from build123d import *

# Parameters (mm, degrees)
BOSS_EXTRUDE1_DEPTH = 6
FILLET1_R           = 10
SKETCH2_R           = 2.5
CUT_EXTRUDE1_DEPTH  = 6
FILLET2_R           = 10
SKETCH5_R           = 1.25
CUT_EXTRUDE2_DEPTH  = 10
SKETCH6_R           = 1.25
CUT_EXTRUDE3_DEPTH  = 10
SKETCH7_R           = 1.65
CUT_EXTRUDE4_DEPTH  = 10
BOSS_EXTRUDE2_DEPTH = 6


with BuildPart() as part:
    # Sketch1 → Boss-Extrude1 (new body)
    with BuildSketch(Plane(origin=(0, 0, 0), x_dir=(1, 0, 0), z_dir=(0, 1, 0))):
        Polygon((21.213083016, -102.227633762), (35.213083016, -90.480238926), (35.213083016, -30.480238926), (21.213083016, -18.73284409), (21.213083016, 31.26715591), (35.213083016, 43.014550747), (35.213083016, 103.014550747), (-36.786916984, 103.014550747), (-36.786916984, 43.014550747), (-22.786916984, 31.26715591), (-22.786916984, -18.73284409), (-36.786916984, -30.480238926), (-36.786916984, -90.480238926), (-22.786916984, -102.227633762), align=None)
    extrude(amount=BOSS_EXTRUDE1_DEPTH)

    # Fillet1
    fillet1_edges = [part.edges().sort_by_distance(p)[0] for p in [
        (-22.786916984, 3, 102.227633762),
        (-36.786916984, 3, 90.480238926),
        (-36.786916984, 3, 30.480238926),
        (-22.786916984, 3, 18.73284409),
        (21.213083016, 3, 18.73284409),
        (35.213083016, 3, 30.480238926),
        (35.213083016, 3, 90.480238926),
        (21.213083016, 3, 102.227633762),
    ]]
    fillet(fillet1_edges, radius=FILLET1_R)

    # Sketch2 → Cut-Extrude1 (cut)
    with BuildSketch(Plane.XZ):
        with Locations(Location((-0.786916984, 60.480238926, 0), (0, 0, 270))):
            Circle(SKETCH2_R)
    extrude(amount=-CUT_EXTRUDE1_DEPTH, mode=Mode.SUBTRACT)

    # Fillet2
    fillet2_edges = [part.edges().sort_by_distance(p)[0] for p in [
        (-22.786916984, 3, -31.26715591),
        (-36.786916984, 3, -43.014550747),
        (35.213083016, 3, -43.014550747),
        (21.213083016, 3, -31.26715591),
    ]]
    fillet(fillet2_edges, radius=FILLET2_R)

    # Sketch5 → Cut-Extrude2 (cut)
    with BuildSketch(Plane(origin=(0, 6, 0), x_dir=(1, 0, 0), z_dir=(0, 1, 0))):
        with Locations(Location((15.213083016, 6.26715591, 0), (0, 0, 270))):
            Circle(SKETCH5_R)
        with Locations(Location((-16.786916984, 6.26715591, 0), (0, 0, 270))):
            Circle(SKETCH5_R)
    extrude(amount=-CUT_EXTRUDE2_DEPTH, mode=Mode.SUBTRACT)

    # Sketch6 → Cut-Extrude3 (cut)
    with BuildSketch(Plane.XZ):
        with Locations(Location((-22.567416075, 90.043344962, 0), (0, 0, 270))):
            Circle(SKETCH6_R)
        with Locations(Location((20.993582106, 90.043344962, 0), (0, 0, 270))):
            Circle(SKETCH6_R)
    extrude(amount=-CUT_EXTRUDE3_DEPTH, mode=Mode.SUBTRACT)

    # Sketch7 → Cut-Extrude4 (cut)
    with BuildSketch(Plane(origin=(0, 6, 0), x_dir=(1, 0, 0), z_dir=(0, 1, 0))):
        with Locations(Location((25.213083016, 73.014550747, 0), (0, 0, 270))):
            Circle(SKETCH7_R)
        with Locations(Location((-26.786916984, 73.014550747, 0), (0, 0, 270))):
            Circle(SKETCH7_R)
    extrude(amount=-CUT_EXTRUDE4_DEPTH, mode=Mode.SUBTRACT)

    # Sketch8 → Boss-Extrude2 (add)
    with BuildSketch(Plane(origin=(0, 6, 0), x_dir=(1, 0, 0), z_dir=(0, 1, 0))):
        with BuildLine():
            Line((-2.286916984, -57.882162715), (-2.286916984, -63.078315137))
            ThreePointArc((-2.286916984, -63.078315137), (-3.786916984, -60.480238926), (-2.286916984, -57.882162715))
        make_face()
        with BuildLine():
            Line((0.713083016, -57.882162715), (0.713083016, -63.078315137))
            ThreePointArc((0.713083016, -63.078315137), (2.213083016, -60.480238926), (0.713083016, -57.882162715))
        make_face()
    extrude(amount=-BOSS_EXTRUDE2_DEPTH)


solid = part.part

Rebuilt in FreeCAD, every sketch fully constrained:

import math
import FreeCAD as App
import Part
import Sketcher
from FreeCAD import Vector
Q = App.Units.Quantity


def edges_at(feature, points):
    """Names of the edges that pass closest to the given points."""
    edges = feature.Shape.Edges
    near = lambda p: min(range(len(edges)), key=lambda i: edges[i].distToShape(Part.Vertex(*p))[0])
    return sorted({f"Edge{near(p) + 1}" for p in points})


def add_polygon(sketch, points):
    """Adds a closed chain of lines whose ends are joined by coincident constraints."""
    first, n = sketch.GeometryCount, len(points)
    for a, b in zip(points, points[1:] + points[:1]):
        sketch.addGeometry(Part.LineSegment(App.Vector(*a, 0), App.Vector(*b, 0)), False)
    for i in range(n):
        sketch.addConstraint(Sketcher.Constraint("Coincident", first + i, 2, first + (i + 1) % n, 1))

doc = App.newDocument("Part")
params = doc.addObject("Spreadsheet::Sheet", "Params")
for row, (alias, value) in enumerate([
    ("sketch1_width", "72 mm"),
    ("sketch1_width2", "44 mm"),
    ("sketch1_height", "60 mm"),
    ("sketch1_height2", "50 mm"),
    ("pad1_length", "6 mm"),
    ("fillet_radius", "10 mm"),
    ("sketch2_diameter", "5 mm"),
    ("pocket1_length", "6 mm"),
    ("fillet2_radius", "10 mm"),
    ("sketch3_diameter", "2.5 mm"),
    ("pocket2_length", "10 mm"),
    ("sketch4_diameter", "2.5 mm"),
    ("pocket3_length", "10 mm"),
    ("sketch5_diameter", "3.3 mm"),
    ("pocket4_length", "10 mm"),
    ("sketch6_radius", "3 mm"),
    ("pad2_length", "6 mm"),
], start=1):
    params.set(f"A{row}", alias)
    params.set(f"B{row}", "=" + value)
    params.setAlias(f"B{row}", alias)

body = doc.addObject("PartDesign::Body", "Body")

sketch1 = body.newObject("Sketcher::SketchObject", "Sketch")
sketch1.AttachmentSupport = (doc.getObject("XZ_Plane"), [""])
sketch1.MapMode = "FlatFace"
add_polygon(sketch1, [(21, 102), (35, 90), (35, 30), (21, 19), (21, -31), (35, -43), (35, -103), (-37, -103), (-37, -43), (-23, -31), (-23, 19), (-37, 30), (-37, 90), (-23, 102)])
sketch1.addConstraint([
    Sketcher.Constraint("Vertical", 1),
    Sketcher.Constraint("Vertical", 3),
    Sketcher.Constraint("Vertical", 5),
    Sketcher.Constraint("Horizontal", 6),
    Sketcher.Constraint("Vertical", 7),
    Sketcher.Constraint("Vertical", 9),
    Sketcher.Constraint("Vertical", 11),
    Sketcher.Constraint("Horizontal", 13),
    Sketcher.Constraint("Parallel", 0, 4),
    Sketcher.Constraint("Parallel", 2, 8),
    Sketcher.Constraint("Parallel", 4, 10),
    Sketcher.Constraint("Parallel", 8, 12),
    Sketcher.Constraint("Horizontal", 4, 2, 7, 2),
    Sketcher.Constraint("Horizontal", 3, 2, 8, 2),
    Sketcher.Constraint("Horizontal", 2, 2, 9, 2),
    Sketcher.Constraint("Horizontal", 1, 2, 10, 2),
    Sketcher.Constraint("Horizontal", 0, 2, 11, 2),
    Sketcher.Constraint("Vertical", 1, 2, 4, 2),
    Sketcher.Constraint("Vertical", 7, 2, 10, 2),
    Sketcher.Constraint("Vertical", 9, 2, 12, 2),
    Sketcher.Constraint("Equal", 1, 5),
    Sketcher.Constraint("DistanceX", 6, 2, 6, 1, 72.0),
    Sketcher.Constraint("DistanceX", 13, 1, 13, 2, 44.0),
    Sketcher.Constraint("DistanceY", 1, 2, 1, 1, 60.0),
    Sketcher.Constraint("DistanceY", 3, 2, 3, 1, 50.0),
    Sketcher.Constraint("Angle", 0, Q("-40 deg")),
    Sketcher.Constraint("DistanceY", -1, 1, 0, 2, 90.480239),
    Sketcher.Constraint("DistanceX", -1, 1, 0, 2, 35.213083),
])
sketch1.setExpression("Constraints[35]", "Params.sketch1_width")
sketch1.setExpression("Constraints[36]", "Params.sketch1_width2")
sketch1.setExpression("Constraints[37]", "Params.sketch1_height")
sketch1.setExpression("Constraints[38]", "Params.sketch1_height2")
pad1 = body.newObject("PartDesign::Pad", "Pad")
pad1.Profile = sketch1
pad1.setExpression("Length", "Params.pad1_length")
pad1.Reversed = True
doc.recompute()

fillet = body.newObject("PartDesign::Fillet", "Fillet")
fillet.Base = (pad1, edges_at(pad1, [
    (-22.787, 3, 102.228),
    (-36.787, 3, 90.48),
    (-36.787, 3, 30.48),
    (-22.787, 3, 18.733),
    (21.213, 3, 18.733),
    (35.213, 3, 30.48),
    (35.213, 3, 90.48),
    (21.213, 3, 102.228),
]))
fillet.setExpression("Radius", "Params.fillet_radius")

sketch2 = body.newObject("Sketcher::SketchObject", "Sketch001")
sketch2.AttachmentSupport = (doc.getObject("XZ_Plane"), [""])
sketch2.MapMode = "FlatFace"
sketch2.addGeometry(Part.Circle(Vector(-0.8, 60.5, 0), Vector(0, 0, 1), 2.5), False)
sketch2.addConstraint([
    Sketcher.Constraint("Diameter", 0, 5.0),
    Sketcher.Constraint("DistanceY", -1, 1, 0, 3, 60.480239),
    Sketcher.Constraint("DistanceX", 0, 3, -1, 1, 0.786917),
])
sketch2.setExpression("Constraints[0]", "Params.sketch2_diameter")
pocket1 = body.newObject("PartDesign::Pocket", "Pocket")
pocket1.Profile = sketch2
pocket1.setExpression("Length", "Params.pocket1_length")
doc.recompute()

fillet2 = body.newObject("PartDesign::Fillet", "Fillet001")
fillet2.Base = (pocket1, edges_at(pocket1, [
    (-22.787, 3, -31.267),
    (-36.787, 3, -43.015),
    (35.213, 3, -43.015),
    (21.213, 3, -31.267),
]))
fillet2.setExpression("Radius", "Params.fillet2_radius")

sketch3 = body.newObject("Sketcher::SketchObject", "Sketch002")
sketch3.AttachmentSupport = (doc.getObject("XZ_Plane"), [""])
sketch3.MapMode = "FlatFace"
sketch3.AttachmentOffset = App.Placement(Vector(0, 0, -6), App.Rotation())
sketch3.addGeometry([
    Part.Circle(Vector(15.2, -6.3, 0), Vector(0, 0, 1), 1.2),
    Part.Circle(Vector(-16.8, -6.3, 0), Vector(0, 0, 1), 1.2),
], False)
sketch3.addConstraint([
    Sketcher.Constraint("Equal", 0, 1),
    Sketcher.Constraint("Horizontal", 0, 3, 1, 3),
    Sketcher.Constraint("Diameter", 0, 2.5),
    Sketcher.Constraint("DistanceX", 1, 3, 0, 3, 32.0),
    Sketcher.Constraint("DistanceX", -1, 1, 0, 3, 15.213083),
    Sketcher.Constraint("DistanceY", 0, 3, -1, 1, 6.267156),
])
sketch3.setExpression("Constraints[2]", "Params.sketch3_diameter")
pocket2 = body.newObject("PartDesign::Pocket", "Pocket001")
pocket2.Profile = sketch3
pocket2.setExpression("Length", "Params.pocket2_length")
pocket2.Reversed = True

sketch4 = body.newObject("Sketcher::SketchObject", "Sketch003")
sketch4.AttachmentSupport = (doc.getObject("XZ_Plane"), [""])
sketch4.MapMode = "FlatFace"
sketch4.addGeometry([
    Part.Circle(Vector(-22.6, 90, 0), Vector(0, 0, 1), 1.2),
    Part.Circle(Vector(21, 90, 0), Vector(0, 0, 1), 1.2),
], False)
sketch4.addConstraint([
    Sketcher.Constraint("Equal", 0, 1),
    Sketcher.Constraint("Horizontal", 0, 3, 1, 3),
    Sketcher.Constraint("Diameter", 0, 2.5),
    Sketcher.Constraint("DistanceX", 0, 3, 1, 3, 43.560998),
    Sketcher.Constraint("DistanceX", 0, 3, -1, 1, 22.567416),
    Sketcher.Constraint("DistanceY", -1, 1, 0, 3, 90.043345),
])
sketch4.setExpression("Constraints[2]", "Params.sketch4_diameter")
pocket3 = body.newObject("PartDesign::Pocket", "Pocket002")
pocket3.Profile = sketch4
pocket3.setExpression("Length", "Params.pocket3_length")

sketch5 = body.newObject("Sketcher::SketchObject", "Sketch004")
sketch5.AttachmentSupport = (doc.getObject("XZ_Plane"), [""])
sketch5.MapMode = "FlatFace"
sketch5.AttachmentOffset = App.Placement(Vector(0, 0, -6), App.Rotation())
sketch5.addGeometry([
    Part.Circle(Vector(25.2, -73, 0), Vector(0, 0, 1), 1.6),
    Part.Circle(Vector(-26.8, -73, 0), Vector(0, 0, 1), 1.6),
], False)
sketch5.addConstraint([
    Sketcher.Constraint("Equal", 0, 1),
    Sketcher.Constraint("Horizontal", 0, 3, 1, 3),
    Sketcher.Constraint("Diameter", 0, 3.3),
    Sketcher.Constraint("DistanceX", 1, 3, 0, 3, 52.0),
    Sketcher.Constraint("DistanceY", 0, 3, -1, 1, 73.014551),
    Sketcher.Constraint("DistanceX", -1, 1, 0, 3, 25.213083),
])
sketch5.setExpression("Constraints[2]", "Params.sketch5_diameter")
pocket4 = body.newObject("PartDesign::Pocket", "Pocket003")
pocket4.Profile = sketch5
pocket4.setExpression("Length", "Params.pocket4_length")
pocket4.Reversed = True

sketch6 = body.newObject("Sketcher::SketchObject", "Sketch005")
sketch6.AttachmentSupport = (doc.getObject("XZ_Plane"), [""])
sketch6.MapMode = "FlatFace"
sketch6.AttachmentOffset = App.Placement(Vector(0, 0, -6), App.Rotation())
sketch6.addGeometry([
    Part.LineSegment(Vector(-2.3, 63.1, 0), Vector(-2.3, 57.9, 0)),
    Part.ArcOfCircle(Part.Circle(Vector(-0.8, 60.5, 0), Vector(0, 0, 1), 3), math.radians(120), math.radians(240)),
    Part.LineSegment(Vector(0.7, 57.9, 0), Vector(0.7, 63.1, 0)),
    Part.ArcOfCircle(Part.Circle(Vector(-0.8, 60.5, 0), Vector(0, 0, 1), 3), math.radians(-60), math.radians(60)),
], False)
sketch6.addConstraint([
    Sketcher.Constraint("Coincident", 0, 1, 1, 1),
    Sketcher.Constraint("Coincident", 1, 2, 0, 2),
    Sketcher.Constraint("Coincident", 2, 1, 3, 1),
    Sketcher.Constraint("Coincident", 3, 2, 2, 2),
    Sketcher.Constraint("Vertical", 0),
    Sketcher.Constraint("Vertical", 2),
    Sketcher.Constraint("Coincident", 3, 3, 1, 3),
    Sketcher.Constraint("Equal", 1, 3),
    Sketcher.Constraint("Horizontal", 1, 2, 2, 1),
    Sketcher.Constraint("Radius", 1, 3.0),
    Sketcher.Constraint("DistanceX", 1, 2, 2, 1, 3.0),
    Sketcher.Constraint("DistanceY", -1, 1, 1, 3, 60.480239),
    Sketcher.Constraint("DistanceX", 1, 3, -1, 1, 0.786917),
])
sketch6.setExpression("Constraints[9]", "Params.sketch6_radius")
pad2 = body.newObject("PartDesign::Pad", "Pad001")
pad2.Profile = sketch6
pad2.setExpression("Length", "Params.pad2_length")

doc.recompute()
